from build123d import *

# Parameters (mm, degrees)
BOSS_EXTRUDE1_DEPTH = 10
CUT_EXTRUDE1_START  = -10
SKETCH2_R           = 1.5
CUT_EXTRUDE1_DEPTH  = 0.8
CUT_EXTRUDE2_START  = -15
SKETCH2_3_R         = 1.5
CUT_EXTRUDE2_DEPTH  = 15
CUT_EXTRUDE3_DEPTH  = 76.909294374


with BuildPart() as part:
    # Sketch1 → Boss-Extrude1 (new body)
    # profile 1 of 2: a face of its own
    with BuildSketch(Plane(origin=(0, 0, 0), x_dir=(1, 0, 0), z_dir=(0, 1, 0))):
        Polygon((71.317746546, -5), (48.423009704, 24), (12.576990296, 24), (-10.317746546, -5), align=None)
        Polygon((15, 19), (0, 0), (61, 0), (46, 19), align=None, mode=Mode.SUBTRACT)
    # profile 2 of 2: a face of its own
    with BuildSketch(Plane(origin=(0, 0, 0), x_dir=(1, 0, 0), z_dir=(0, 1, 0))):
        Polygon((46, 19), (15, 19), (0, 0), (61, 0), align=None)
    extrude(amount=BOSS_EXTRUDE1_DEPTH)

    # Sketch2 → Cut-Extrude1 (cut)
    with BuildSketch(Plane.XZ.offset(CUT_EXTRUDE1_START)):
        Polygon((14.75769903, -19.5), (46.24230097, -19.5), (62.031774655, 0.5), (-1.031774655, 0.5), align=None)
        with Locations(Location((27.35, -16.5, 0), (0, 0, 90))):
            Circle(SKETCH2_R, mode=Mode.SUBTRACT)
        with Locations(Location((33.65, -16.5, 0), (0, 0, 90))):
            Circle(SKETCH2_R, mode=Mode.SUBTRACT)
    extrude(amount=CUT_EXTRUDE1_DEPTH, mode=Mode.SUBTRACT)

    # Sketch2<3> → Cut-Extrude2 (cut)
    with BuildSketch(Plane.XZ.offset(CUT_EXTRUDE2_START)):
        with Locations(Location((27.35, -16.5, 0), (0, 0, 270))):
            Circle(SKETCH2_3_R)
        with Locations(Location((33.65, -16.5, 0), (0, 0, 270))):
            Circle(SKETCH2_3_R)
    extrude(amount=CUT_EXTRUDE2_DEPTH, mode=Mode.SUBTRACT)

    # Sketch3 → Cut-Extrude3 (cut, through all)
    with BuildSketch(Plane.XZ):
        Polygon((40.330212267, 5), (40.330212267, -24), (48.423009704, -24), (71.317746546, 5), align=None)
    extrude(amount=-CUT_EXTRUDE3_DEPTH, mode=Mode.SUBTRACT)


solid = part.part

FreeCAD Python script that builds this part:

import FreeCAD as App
import Part
import Sketcher
Q = App.Units.Quantity

doc = App.newDocument("Part")
body = doc.addObject("PartDesign::Body", "Body")

sketch1 = body.newObject("Sketcher::SketchObject", "Sketch")
sketch1.AttachmentSupport = (doc.getObject("XZ_Plane"), [""])
sketch1.MapMode = "FlatFace"
sketch1.addGeometry(Part.LineSegment(App.Vector(71.317747, 5, 0), App.Vector(48.42301, -24, 0)), False)
sketch1.addGeometry(Part.LineSegment(App.Vector(48.42301, -24, 0), App.Vector(12.57699, -24, 0)), False)
sketch1.addGeometry(Part.LineSegment(App.Vector(12.57699, -24, 0), App.Vector(-10.317747, 5, 0)), False)
sketch1.addGeometry(Part.LineSegment(App.Vector(-10.317747, 5, 0), App.Vector(71.317747, 5, 0)), False)
sketch1.addConstraint(Sketcher.Constraint("Coincident", 0, 2, 1, 1))
sketch1.addConstraint(Sketcher.Constraint("Coincident", 1, 2, 2, 1))
sketch1.addConstraint(Sketcher.Constraint("Coincident", 2, 2, 3, 1))
sketch1.addConstraint(Sketcher.Constraint("Coincident", 3, 2, 0, 1))
sketch1.addConstraint(Sketcher.Constraint("Horizontal", 1))
sketch1.addConstraint(Sketcher.Constraint("Horizontal", 3))
sketch1.addConstraint(Sketcher.Constraint("Equal", 0, 2))
sketch1.addConstraint(Sketcher.Constraint("DistanceY", 0, 2, -1, 1, Q("24 mm")))
sketch1.addConstraint(Sketcher.Constraint("DistanceY", -1, 1, 2, 2, Q("5 mm")))
sketch1.addConstraint(Sketcher.Constraint("DistanceX", 1, 2, 1, 1, Q("35.846019 mm")))
sketch1.addConstraint(Sketcher.Constraint("DistanceX", 3, 1, 3, 2, Q("81.635493 mm")))
sketch1.addConstraint(Sketcher.Constraint("DistanceX", -1, 1, 0, 2, Q("48.42301 mm")))
pad1 = body.newObject("PartDesign::Pad", "Pad")
pad1.Profile = sketch1
pad1.Length = 10
pad1.Reversed = True

sketch2 = body.newObject("Sketcher::SketchObject", "Sketch001")
sketch2.AttachmentSupport = (doc.getObject("XZ_Plane"), [""])
sketch2.MapMode = "FlatFace"
sketch2.AttachmentOffset = App.Placement(App.Vector(0, 0, -10), App.Rotation())
sketch2.addGeometry(Part.LineSegment(App.Vector(14.757699, -19.5, 0), App.Vector(46.242301, -19.5, 0)), False)
sketch2.addGeometry(Part.LineSegment(App.Vector(46.242301, -19.5, 0), App.Vector(62.031775, 0.5, 0)), False)
sketch2.addGeometry(Part.LineSegment(App.Vector(62.031775, 0.5, 0), App.Vector(-1.031775, 0.5, 0)), False)
sketch2.addGeometry(Part.LineSegment(App.Vector(-1.031775, 0.5, 0), App.Vector(14.757699, -19.5, 0)), False)
sketch2.addGeometry(Part.Circle(App.Vector(27.35, -16.5, 0), App.Vector(0, 0, 1), 1.5), False)
sketch2.addGeometry(Part.Circle(App.Vector(33.65, -16.5, 0), App.Vector(0, 0, 1), 1.5), False)
sketch2.addConstraint(Sketcher.Constraint("Coincident", 0, 2, 1, 1))
sketch2.addConstraint(Sketcher.Constraint("Coincident", 1, 2, 2, 1))
sketch2.addConstraint(Sketcher.Constraint("Coincident", 2, 2, 3, 1))
sketch2.addConstraint(Sketcher.Constraint("Coincident", 3, 2, 0, 1))
sketch2.addConstraint(Sketcher.Constraint("Horizontal", 0))
sketch2.addConstraint(Sketcher.Constraint("Horizontal", 2))
sketch2.addConstraint(Sketcher.Constraint("Equal", 4, 5))
sketch2.addConstraint(Sketcher.Constraint("Horizontal", 4, 3, 5, 3))
sketch2.addConstraint(Sketcher.Constraint("Equal", 1, 3))
sketch2.addConstraint(Sketcher.Constraint("Diameter", 4, Q("3 mm")))
sketch2.addConstraint(Sketcher.Constraint("DistanceY", 0, 2, 5, 3, Q("3 mm")))
sketch2.addConstraint(Sketcher.Constraint("DistanceY", 0, 2, 1, 2, Q("20 mm")))
sketch2.addConstraint(Sketcher.Constraint("DistanceY", 4, 3, -1, 1, Q("16.5 mm")))
sketch2.addConstraint(Sketcher.Constraint("DistanceX", 4, 3, 5, 3, Q("6.3 mm")))
sketch2.addConstraint(Sketcher.Constraint("DistanceX", -1, 1, 4, 3, Q("27.35 mm")))
sketch2.addConstraint(Sketcher.Constraint("DistanceX", 0, 1, 0, 2, Q("31.484602 mm")))
sketch2.addConstraint(Sketcher.Constraint("DistanceX", 2, 2, 2, 1, Q("63.063549 mm")))
sketch2.addConstraint(Sketcher.Constraint("DistanceX", -1, 1, 0, 2, Q("46.242301 mm")))
pocket1 = body.newObject("PartDesign::Pocket", "Pocket")
pocket1.Profile = sketch2
pocket1.Length = 0.8
pocket1.Reversed = True

sketch3 = body.newObject("Sketcher::SketchObject", "Sketch002")
sketch3.AttachmentSupport = (doc.getObject("XZ_Plane"), [""])
sketch3.MapMode = "FlatFace"
sketch3.AttachmentOffset = App.Placement(App.Vector(0, 0, -15), App.Rotation())
sketch3.addGeometry(Part.Circle(App.Vector(27.35, -16.5, 0), App.Vector(0, 0, 1), 1.5), False)
sketch3.addGeometry(Part.Circle(App.Vector(33.65, -16.5, 0), App.Vector(0, 0, 1), 1.5), False)
sketch3.addConstraint(Sketcher.Constraint("Equal", 0, 1))
sketch3.addConstraint(Sketcher.Constraint("Horizontal", 0, 3, 1, 3))
sketch3.addConstraint(Sketcher.Constraint("Diameter", 0, Q("3 mm")))
sketch3.addConstraint(Sketcher.Constraint("DistanceY", 0, 3, -1, 1, Q("16.5 mm")))
sketch3.addConstraint(Sketcher.Constraint("DistanceX", 0, 3, 1, 3, Q("6.3 mm")))
sketch3.addConstraint(Sketcher.Constraint("DistanceX", -1, 1, 0, 3, Q("27.35 mm")))
pocket2 = body.newObject("PartDesign::Pocket", "Pocket001")
pocket2.Profile = sketch3
pocket2.Length = 15
pocket2.Reversed = True

sketch4 = body.newObject("Sketcher::SketchObject", "Sketch003")
sketch4.AttachmentSupport = (doc.getObject("XZ_Plane"), [""])
sketch4.MapMode = "FlatFace"
sketch4.addGeometry(Part.LineSegment(App.Vector(40.330212, 5, 0), App.Vector(40.330212, -24, 0)), False)
sketch4.addGeometry(Part.LineSegment(App.Vector(40.330212, -24, 0), App.Vector(48.42301, -24, 0)), False)
sketch4.addGeometry(Part.LineSegment(App.Vector(48.42301, -24, 0), App.Vector(71.317747, 5, 0)), False)
sketch4.addGeometry(Part.LineSegment(App.Vector(71.317747, 5, 0), App.Vector(40.330212, 5, 0)), False)
sketch4.addConstraint(Sketcher.Constraint("Coincident", 0, 2, 1, 1))
sketch4.addConstraint(Sketcher.Constraint("Coincident", 1, 2, 2, 1))
sketch4.addConstraint(Sketcher.Constraint("Coincident", 2, 2, 3, 1))
sketch4.addConstraint(Sketcher.Constraint("Coincident", 3, 2, 0, 1))
sketch4.addConstraint(Sketcher.Constraint("Vertical", 0))
sketch4.addConstraint(Sketcher.Constraint("Horizontal", 1))
sketch4.addConstraint(Sketcher.Constraint("Horizontal", 3))
sketch4.addConstraint(Sketcher.Constraint("DistanceY", 0, 2, 0, 1, Q("29 mm")))
sketch4.addConstraint(Sketcher.Constraint("DistanceY", 0, 2, -1, 1, Q("24 mm")))
sketch4.addConstraint(Sketcher.Constraint("DistanceX", 1, 1, 1, 2, Q("8.092797 mm")))
sketch4.addConstraint(Sketcher.Constraint("DistanceX", 3, 2, 3, 1, Q("30.987534 mm")))
sketch4.addConstraint(Sketcher.Constraint("DistanceX", -1, 1, 1, 2, Q("48.42301 mm")))
pocket3 = body.newObject("PartDesign::Pocket", "Pocket002")
pocket3.Profile = sketch4
pocket3.Type = "ThroughAll"

doc.recompute()
